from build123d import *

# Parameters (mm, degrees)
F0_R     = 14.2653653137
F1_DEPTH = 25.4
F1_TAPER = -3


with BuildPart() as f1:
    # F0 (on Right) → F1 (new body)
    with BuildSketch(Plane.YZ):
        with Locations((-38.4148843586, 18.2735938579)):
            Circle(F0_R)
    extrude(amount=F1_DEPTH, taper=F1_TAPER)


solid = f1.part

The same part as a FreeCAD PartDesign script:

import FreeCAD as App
import Part
import Sketcher

doc = App.newDocument("Part")
params = doc.addObject("Spreadsheet::Sheet", "Params")
for row, (alias, value) in enumerate([
    ("pad1_length", "1 in"),
    ("pad1_taper", "3 deg"),
], start=1):
    params.set(f"A{row}", alias)
    params.set(f"B{row}", "=" + value)
    params.setAlias(f"B{row}", alias)

body = doc.addObject("PartDesign::Body", "Body")

# Sketch on YZ plane
sketch1 = body.newObject("Sketcher::SketchObject", "Sketch")
sketch1.AttachmentSupport = (doc.getObject("YZ_Plane"), [""])
sketch1.MapMode = "FlatFace"
sketch1.addGeometry(Part.Circle(App.Vector(-38, 18, 0), App.Vector(0, 0, 1), 14), False)
sketch1.addConstraint(Sketcher.Constraint("Diameter", 0, 28.530731))
sketch1.addConstraint(Sketcher.Constraint("DistanceX", 0, 3, -1, 1, 38.414884))
sketch1.addConstraint(Sketcher.Constraint("DistanceY", -1, 1, 0, 3, 18.273594))
pad1 = body.newObject("PartDesign::Pad", "Pad")
pad1.Profile = sketch1
pad1.setExpression("Length", "Params.pad1_length")
pad1.setExpression("TaperAngle", "Params.pad1_taper")

doc.recompute()
